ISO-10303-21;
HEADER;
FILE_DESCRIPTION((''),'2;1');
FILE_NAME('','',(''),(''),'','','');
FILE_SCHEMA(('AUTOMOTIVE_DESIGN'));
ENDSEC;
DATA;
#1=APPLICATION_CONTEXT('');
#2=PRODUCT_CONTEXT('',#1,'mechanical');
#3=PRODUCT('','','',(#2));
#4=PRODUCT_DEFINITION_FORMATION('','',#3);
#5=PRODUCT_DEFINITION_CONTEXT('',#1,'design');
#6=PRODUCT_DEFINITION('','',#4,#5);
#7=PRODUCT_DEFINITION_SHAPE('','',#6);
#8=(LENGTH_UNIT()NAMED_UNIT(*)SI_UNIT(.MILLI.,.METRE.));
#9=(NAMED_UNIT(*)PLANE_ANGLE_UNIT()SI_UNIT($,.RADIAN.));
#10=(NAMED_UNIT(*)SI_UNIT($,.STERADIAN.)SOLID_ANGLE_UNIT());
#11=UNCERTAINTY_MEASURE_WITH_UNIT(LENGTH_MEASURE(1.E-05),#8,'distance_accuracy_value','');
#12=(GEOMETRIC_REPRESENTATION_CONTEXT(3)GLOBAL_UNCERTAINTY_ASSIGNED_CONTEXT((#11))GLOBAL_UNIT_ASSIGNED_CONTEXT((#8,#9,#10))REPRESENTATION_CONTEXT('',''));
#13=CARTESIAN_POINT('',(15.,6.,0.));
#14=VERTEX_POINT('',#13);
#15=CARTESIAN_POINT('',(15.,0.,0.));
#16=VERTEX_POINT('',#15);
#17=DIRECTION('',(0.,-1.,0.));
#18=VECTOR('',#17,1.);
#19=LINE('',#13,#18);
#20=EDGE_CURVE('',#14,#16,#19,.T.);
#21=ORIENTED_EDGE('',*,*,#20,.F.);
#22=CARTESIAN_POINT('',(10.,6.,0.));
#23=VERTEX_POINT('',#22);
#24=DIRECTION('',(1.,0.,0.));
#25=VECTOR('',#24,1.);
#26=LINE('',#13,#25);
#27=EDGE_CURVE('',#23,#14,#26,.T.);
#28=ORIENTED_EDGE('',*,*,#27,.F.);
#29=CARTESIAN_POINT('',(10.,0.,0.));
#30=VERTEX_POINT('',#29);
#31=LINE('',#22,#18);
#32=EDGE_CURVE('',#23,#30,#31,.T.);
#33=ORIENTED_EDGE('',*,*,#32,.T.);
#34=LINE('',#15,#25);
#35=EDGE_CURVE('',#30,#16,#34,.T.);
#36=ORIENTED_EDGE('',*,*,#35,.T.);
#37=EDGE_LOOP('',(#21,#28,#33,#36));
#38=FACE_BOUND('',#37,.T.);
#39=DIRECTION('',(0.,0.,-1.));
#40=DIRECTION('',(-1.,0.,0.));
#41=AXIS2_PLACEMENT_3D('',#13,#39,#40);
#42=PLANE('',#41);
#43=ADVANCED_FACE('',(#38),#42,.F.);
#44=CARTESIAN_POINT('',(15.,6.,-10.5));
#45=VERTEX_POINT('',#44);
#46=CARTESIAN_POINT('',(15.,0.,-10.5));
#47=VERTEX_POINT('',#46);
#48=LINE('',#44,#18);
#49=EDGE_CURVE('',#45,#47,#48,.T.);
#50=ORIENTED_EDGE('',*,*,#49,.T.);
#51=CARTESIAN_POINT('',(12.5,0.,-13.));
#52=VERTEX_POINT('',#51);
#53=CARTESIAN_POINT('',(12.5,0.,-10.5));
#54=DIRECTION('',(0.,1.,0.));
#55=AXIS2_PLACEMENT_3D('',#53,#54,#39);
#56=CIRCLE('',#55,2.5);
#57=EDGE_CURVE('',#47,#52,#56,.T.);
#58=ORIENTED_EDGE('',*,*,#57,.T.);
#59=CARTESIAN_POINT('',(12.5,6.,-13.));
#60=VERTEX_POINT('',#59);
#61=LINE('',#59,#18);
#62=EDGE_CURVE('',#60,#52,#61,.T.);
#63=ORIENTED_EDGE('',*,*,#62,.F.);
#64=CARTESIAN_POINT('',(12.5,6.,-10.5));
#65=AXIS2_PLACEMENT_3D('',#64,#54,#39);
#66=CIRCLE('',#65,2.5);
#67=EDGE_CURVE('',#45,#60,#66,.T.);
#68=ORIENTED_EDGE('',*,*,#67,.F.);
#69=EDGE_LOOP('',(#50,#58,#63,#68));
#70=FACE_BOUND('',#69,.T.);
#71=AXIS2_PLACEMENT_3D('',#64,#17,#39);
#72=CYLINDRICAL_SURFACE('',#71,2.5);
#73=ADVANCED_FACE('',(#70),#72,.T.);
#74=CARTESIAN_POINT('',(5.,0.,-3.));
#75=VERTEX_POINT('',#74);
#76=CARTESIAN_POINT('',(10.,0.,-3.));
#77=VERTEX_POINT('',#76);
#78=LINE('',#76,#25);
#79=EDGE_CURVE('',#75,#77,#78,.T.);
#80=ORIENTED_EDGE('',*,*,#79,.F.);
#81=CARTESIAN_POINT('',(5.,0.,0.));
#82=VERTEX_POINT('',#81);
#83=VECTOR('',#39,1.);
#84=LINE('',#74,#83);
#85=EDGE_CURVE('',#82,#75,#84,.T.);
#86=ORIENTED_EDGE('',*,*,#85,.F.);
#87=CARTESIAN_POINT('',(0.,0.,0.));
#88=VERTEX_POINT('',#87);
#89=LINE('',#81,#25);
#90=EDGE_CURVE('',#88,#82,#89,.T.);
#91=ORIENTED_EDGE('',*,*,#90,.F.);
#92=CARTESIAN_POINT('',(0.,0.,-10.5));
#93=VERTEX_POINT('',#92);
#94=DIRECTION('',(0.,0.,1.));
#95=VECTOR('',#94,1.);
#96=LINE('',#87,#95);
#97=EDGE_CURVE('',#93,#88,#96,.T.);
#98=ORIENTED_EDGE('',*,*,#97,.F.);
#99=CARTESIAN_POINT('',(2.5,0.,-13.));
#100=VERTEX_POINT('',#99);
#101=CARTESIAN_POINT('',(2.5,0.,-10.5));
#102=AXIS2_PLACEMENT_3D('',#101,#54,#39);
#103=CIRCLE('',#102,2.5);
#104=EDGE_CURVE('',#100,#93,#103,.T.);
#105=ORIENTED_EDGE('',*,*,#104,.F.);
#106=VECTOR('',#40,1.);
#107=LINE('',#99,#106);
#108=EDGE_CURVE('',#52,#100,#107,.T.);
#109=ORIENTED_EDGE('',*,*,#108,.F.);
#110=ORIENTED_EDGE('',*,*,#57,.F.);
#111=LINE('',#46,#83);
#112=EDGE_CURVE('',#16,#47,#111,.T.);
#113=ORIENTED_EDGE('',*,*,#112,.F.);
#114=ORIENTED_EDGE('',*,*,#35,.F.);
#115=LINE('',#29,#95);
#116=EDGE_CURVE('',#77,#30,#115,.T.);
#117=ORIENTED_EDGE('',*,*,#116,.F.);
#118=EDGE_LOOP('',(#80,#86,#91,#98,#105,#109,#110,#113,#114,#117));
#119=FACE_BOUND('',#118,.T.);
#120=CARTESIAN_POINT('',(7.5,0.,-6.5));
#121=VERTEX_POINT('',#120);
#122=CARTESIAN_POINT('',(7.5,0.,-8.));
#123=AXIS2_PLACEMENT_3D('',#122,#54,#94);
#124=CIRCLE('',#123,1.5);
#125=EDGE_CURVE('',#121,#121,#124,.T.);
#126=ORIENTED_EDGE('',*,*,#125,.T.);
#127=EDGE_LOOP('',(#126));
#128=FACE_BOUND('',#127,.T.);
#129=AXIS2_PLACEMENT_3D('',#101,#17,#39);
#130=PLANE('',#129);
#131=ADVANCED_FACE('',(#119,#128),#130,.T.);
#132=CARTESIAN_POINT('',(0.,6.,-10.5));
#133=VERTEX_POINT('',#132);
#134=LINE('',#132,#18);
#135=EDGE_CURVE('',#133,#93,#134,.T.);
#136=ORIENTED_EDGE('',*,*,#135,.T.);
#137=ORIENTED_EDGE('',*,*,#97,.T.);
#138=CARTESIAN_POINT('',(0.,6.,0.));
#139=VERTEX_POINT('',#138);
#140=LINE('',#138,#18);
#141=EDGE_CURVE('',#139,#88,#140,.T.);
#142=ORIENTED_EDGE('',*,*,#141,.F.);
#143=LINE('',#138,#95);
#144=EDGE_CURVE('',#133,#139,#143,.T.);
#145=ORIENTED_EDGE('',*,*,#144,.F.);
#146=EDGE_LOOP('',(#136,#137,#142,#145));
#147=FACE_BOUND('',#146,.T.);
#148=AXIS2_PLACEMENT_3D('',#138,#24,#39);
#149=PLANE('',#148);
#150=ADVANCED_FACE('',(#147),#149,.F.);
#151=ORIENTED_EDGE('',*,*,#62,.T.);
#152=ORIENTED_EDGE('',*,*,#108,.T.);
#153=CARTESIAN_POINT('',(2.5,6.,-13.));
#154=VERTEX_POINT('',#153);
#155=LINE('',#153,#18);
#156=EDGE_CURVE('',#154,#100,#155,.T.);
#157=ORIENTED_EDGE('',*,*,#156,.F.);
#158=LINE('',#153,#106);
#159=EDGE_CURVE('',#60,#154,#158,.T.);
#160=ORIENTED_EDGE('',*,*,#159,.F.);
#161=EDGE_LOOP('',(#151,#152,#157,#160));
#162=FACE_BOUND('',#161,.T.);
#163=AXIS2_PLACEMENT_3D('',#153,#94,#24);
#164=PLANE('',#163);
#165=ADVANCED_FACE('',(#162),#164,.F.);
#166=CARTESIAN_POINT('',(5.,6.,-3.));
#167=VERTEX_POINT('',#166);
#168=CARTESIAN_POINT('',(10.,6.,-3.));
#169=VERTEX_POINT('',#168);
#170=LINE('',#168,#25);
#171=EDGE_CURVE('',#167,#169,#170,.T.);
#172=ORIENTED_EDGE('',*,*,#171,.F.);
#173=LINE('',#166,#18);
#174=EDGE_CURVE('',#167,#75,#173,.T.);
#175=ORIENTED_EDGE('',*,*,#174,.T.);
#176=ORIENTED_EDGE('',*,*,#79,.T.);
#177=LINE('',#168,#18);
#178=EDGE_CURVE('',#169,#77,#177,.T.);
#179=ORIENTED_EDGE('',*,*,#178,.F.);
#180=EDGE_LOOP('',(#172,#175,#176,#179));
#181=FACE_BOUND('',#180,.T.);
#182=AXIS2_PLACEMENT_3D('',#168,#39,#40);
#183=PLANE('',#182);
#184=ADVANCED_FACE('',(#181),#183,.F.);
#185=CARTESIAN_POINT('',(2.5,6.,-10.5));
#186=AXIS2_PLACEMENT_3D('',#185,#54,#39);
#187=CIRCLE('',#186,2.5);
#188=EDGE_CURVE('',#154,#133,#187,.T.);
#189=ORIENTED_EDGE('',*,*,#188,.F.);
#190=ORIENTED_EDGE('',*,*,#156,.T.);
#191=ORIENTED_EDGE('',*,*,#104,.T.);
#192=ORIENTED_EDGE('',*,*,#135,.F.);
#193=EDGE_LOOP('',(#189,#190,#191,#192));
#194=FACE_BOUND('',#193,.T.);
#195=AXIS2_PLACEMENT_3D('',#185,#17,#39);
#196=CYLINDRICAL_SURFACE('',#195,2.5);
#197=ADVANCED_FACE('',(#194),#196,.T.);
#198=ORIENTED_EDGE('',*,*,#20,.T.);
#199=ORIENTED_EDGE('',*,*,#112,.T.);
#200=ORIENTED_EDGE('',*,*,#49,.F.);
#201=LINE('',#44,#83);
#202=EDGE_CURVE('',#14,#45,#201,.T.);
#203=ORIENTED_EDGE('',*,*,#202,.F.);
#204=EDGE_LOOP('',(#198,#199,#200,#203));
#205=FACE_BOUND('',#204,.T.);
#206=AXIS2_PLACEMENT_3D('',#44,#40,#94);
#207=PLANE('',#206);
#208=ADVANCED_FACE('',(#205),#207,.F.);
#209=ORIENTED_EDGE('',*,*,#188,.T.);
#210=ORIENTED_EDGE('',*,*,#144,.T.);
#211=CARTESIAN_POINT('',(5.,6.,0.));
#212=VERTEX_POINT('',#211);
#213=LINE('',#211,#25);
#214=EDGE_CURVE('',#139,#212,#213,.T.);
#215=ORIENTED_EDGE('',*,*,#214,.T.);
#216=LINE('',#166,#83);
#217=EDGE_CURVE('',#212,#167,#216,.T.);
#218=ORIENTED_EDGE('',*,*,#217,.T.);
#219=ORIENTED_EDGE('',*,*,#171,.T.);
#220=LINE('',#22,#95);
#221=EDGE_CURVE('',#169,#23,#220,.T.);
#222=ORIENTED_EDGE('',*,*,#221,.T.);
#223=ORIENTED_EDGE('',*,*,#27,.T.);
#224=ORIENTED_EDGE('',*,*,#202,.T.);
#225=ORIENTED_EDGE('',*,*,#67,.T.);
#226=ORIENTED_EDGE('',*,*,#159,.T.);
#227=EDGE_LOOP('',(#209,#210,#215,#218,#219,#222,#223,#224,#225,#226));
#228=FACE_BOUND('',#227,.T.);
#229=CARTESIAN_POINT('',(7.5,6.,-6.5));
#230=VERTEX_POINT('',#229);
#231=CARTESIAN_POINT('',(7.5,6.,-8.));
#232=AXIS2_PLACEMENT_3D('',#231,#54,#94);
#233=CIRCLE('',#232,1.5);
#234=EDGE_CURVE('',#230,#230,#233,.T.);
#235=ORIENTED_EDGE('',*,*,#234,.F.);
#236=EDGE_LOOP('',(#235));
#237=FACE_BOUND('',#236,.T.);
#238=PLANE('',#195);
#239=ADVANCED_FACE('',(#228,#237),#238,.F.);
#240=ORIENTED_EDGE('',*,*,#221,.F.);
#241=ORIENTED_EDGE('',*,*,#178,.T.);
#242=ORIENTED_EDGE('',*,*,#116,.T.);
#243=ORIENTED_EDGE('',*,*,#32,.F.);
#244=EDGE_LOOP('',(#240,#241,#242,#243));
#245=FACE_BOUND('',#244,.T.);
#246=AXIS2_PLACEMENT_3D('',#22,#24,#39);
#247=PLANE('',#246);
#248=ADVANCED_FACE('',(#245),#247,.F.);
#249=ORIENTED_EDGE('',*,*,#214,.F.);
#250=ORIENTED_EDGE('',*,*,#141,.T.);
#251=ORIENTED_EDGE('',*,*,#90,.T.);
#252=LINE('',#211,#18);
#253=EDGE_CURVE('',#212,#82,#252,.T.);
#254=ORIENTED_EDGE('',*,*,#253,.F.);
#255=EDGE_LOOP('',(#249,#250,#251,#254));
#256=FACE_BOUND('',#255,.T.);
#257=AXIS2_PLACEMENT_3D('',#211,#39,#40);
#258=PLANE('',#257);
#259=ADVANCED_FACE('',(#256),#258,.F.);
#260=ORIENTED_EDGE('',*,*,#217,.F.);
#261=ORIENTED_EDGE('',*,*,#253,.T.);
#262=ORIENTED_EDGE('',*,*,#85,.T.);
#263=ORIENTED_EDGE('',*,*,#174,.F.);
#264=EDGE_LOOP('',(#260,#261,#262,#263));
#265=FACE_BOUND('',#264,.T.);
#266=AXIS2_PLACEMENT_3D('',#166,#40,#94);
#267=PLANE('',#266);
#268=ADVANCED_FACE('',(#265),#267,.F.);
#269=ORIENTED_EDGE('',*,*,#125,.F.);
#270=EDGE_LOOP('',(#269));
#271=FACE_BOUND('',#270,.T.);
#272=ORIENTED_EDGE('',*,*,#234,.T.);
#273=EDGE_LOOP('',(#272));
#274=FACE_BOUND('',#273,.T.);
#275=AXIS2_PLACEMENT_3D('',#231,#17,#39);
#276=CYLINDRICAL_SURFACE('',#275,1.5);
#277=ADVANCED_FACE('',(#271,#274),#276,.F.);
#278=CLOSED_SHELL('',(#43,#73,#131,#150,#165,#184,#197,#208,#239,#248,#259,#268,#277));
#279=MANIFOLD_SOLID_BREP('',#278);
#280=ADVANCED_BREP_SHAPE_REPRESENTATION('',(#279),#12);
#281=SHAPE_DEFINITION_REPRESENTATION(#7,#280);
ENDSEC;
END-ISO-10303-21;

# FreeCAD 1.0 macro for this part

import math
import FreeCAD as App
import Part
import Sketcher

doc = App.newDocument("Part")
body = doc.addObject("PartDesign::Body", "Body")

# Sketch on XZ plane
sketch1 = body.newObject("Sketcher::SketchObject", "Sketch")
sketch1.AttachmentSupport = (doc.getObject("XZ_Plane"), [""])
sketch1.MapMode = "FlatFace"
sketch1.addGeometry([
    Part.LineSegment(App.Vector(0, -10.5, 0), App.Vector(0, 0, 0)),  # 0
    Part.LineSegment(App.Vector(0, 0, 0), App.Vector(5, 0, 0)),  # 1
    Part.LineSegment(App.Vector(5, 0, 0), App.Vector(5, -3, 0)),  # 2
    Part.LineSegment(App.Vector(5, -3, 0), App.Vector(10, -3, 0)),  # 3
    Part.LineSegment(App.Vector(10, -3, 0), App.Vector(10, 0, 0)),  # 4
    Part.LineSegment(App.Vector(10, 0, 0), App.Vector(15, 0, 0)),  # 5
    Part.LineSegment(App.Vector(15, 0, 0), App.Vector(15, -10.5, 0)),  # 6
    Part.ArcOfCircle(Part.Circle(App.Vector(12.5, -10.5, 0), App.Vector(0, 0, 1), 2.5), math.radians(-90), math.radians(0)),  # 7
    Part.LineSegment(App.Vector(12.5, -13, 0), App.Vector(2.5, -13, 0)),  # 8
    Part.ArcOfCircle(Part.Circle(App.Vector(2.5, -10.5, 0), App.Vector(0, 0, 1), 2.5), math.radians(180), math.radians(270)),  # 9
    Part.Circle(App.Vector(7.5, -8, 0), App.Vector(0, 0, 1), 1.5),  # 10
], False)
sketch1.addConstraint([
    Sketcher.Constraint("Coincident", 0, 2, 1, 1),
    Sketcher.Constraint("Coincident", 1, 2, 2, 1),
    Sketcher.Constraint("Coincident", 2, 2, 3, 1),
    Sketcher.Constraint("Coincident", 3, 2, 4, 1),
    Sketcher.Constraint("Coincident", 4, 2, 5, 1),
    Sketcher.Constraint("Coincident", 5, 2, 6, 1),
    Sketcher.Constraint("Tangent", 6, 2, 7, 2),
    Sketcher.Constraint("Tangent", 7, 1, 8, 1),
    Sketcher.Constraint("Tangent", 8, 2, 9, 2),
    Sketcher.Constraint("Tangent", 9, 1, 0, 1),
    Sketcher.Constraint("Vertical", 0),
    Sketcher.Constraint("Horizontal", 1),
    Sketcher.Constraint("Vertical", 2),
    Sketcher.Constraint("Horizontal", 3),
    Sketcher.Constraint("Vertical", 4),
    Sketcher.Constraint("Horizontal", 5),
    Sketcher.Constraint("Vertical", 6),
    Sketcher.Constraint("Horizontal", 8),
    Sketcher.Constraint("Coincident", 0, 2, -1, 1),
    Sketcher.Constraint("Equal", 7, 9),
    Sketcher.Constraint("PointOnObject", 4, 2, -1),
    Sketcher.Constraint("Equal", 1, 3),
    Sketcher.Constraint("Equal", 3, 5),
    Sketcher.Constraint("Diameter", 10, 3.0),
    Sketcher.Constraint("Radius", 7, 2.5),
    Sketcher.Constraint("DistanceX", 1, 1, 1, 2, 5.0),
    Sketcher.Constraint("DistanceY", 2, 2, 2, 1, 3.0),
    Sketcher.Constraint("DistanceY", 0, 1, 0, 2, 10.5),
    Sketcher.Constraint("DistanceY", 10, 3, -1, 1, 8.0),
    Sketcher.Constraint("DistanceX", 10, 3, 7, 3, 5.0),
])
pad1 = body.newObject("PartDesign::Pad", "Pad")
pad1.Profile = sketch1
pad1.Length = 6
pad1.Reversed = True

doc.recompute()
